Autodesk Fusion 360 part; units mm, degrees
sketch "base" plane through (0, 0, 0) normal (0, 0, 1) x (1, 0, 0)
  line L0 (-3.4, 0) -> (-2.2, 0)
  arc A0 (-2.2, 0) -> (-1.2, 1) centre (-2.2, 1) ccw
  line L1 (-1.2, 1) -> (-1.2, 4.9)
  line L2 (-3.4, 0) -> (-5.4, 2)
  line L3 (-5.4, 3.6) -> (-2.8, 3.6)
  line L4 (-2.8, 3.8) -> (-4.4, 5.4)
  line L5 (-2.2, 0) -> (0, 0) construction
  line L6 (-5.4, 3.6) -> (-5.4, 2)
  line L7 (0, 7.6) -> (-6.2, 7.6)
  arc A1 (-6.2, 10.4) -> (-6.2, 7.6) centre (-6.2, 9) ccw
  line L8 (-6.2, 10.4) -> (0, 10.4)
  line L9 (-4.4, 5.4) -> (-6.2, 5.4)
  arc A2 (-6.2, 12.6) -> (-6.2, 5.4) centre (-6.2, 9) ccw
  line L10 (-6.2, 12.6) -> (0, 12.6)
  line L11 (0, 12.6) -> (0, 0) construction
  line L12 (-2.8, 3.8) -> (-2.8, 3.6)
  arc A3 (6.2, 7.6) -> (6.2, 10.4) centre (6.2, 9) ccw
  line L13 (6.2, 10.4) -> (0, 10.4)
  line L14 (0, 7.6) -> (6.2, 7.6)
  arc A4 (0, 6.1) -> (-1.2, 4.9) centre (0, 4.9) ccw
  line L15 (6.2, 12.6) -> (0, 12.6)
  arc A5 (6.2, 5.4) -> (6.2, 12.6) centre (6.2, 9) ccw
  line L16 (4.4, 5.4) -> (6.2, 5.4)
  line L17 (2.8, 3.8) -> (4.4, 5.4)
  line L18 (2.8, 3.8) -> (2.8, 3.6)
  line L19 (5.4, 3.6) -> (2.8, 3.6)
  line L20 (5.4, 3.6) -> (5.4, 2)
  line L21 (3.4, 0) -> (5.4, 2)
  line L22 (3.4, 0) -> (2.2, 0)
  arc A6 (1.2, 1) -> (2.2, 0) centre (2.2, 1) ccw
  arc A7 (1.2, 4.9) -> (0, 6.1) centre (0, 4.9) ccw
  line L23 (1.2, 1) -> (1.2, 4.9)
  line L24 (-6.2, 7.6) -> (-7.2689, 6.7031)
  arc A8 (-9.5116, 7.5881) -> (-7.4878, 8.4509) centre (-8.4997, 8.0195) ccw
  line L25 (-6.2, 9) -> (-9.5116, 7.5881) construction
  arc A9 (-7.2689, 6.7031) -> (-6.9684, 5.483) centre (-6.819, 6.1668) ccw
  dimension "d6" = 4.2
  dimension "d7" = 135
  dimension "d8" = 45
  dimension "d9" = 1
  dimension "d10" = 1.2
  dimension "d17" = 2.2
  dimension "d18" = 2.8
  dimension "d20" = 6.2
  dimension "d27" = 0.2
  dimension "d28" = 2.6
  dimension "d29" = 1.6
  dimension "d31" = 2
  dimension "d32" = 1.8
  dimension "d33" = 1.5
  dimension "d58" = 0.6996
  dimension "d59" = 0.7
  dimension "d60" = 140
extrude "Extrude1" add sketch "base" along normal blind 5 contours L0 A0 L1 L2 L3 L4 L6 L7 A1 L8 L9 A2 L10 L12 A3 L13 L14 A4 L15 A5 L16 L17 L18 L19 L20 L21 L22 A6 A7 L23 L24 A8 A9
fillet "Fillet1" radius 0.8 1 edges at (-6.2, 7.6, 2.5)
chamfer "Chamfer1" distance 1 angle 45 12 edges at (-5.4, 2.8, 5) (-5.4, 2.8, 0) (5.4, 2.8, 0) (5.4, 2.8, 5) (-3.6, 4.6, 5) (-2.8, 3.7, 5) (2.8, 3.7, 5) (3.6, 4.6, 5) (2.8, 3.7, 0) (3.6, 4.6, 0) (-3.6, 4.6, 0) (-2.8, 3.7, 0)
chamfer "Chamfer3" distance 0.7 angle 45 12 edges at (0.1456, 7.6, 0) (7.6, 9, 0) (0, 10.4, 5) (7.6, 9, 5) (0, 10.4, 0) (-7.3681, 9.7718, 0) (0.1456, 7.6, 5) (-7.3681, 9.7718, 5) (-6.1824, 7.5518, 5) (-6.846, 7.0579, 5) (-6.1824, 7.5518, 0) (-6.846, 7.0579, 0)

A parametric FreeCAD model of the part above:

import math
import FreeCAD as App
import Part
import Sketcher

V = App.Vector
Q = App.Units.Quantity


def edges_at(feature, points):
    """Names of the edges that pass closest to the given points."""
    edges = feature.Shape.Edges
    near = lambda p: min(range(len(edges)), key=lambda i: edges[i].distToShape(Part.Vertex(*p))[0])
    return sorted({f"Edge{near(p) + 1}" for p in points})

doc = App.newDocument("Part")
body = doc.addObject("PartDesign::Body", "Body")

# Sketch on XY plane
sketch1 = body.newObject("Sketcher::SketchObject", "Sketch")
sketch1.AttachmentSupport = (doc.getObject("XY_Plane"), [""])
sketch1.MapMode = "FlatFace"
sketch1.addGeometry([
    Part.LineSegment(V(-5.4, 2, 0), V(-3.4, 0, 0)),  # 0
    Part.LineSegment(V(-3.4, 0, 0), V(-2.2, 0, 0)),  # 1
    Part.ArcOfCircle(Part.Circle(V(-2.2, 1, 0), V(0, 0, 1), 1), math.radians(-90), math.radians(0)),  # 2
    Part.LineSegment(V(-1.2, 1, 0), V(-1.2, 4.9, 0)),  # 3
    Part.ArcOfCircle(Part.Circle(V(0, 4.9, 0), V(0, 0, 1), 1.2), math.radians(0), math.radians(180)),  # 4
    Part.LineSegment(V(1.2, 4.9, 0), V(1.2, 1, 0)),  # 5
    Part.ArcOfCircle(Part.Circle(V(2.2, 1, 0), V(0, 0, 1), 1), math.radians(180), math.radians(270)),  # 6
    Part.LineSegment(V(2.2, 0, 0), V(3.4, 0, 0)),  # 7
    Part.LineSegment(V(3.4, 0, 0), V(5.4, 2, 0)),  # 8
    Part.LineSegment(V(5.4, 2, 0), V(5.4, 3.6, 0)),  # 9
    Part.LineSegment(V(5.4, 3.6, 0), V(2.8, 3.6, 0)),  # 10
    Part.LineSegment(V(2.8, 3.6, 0), V(2.8, 3.8, 0)),  # 11
    Part.LineSegment(V(2.8, 3.8, 0), V(4.4, 5.4, 0)),  # 12
    Part.LineSegment(V(4.4, 5.4, 0), V(6.2, 5.4, 0)),  # 13
    Part.ArcOfCircle(Part.Circle(V(6.2, 9, 0), V(0, 0, 1), 3.6), math.radians(-90), math.radians(90)),  # 14
    Part.LineSegment(V(6.2, 12.6, 0), V(-6.2, 12.6, 0)),  # 15
    Part.ArcOfCircle(Part.Circle(V(-6.2, 9, 0), V(0, 0, 1), 3.6), math.radians(90), math.radians(203)),  # 16
    Part.ArcOfCircle(Part.Circle(V(-8.5, 8.02, 0), V(0, 0, 1), 1.1), math.radians(-157), math.radians(23)),  # 17
    Part.ArcOfCircle(Part.Circle(V(-6.2, 9, 0), V(0, 0, 1), 1.4), math.radians(90), math.radians(203)),  # 18
    Part.LineSegment(V(-6.2, 10.4, 0), V(6.2, 10.4, 0)),  # 19
    Part.ArcOfCircle(Part.Circle(V(6.2, 9, 0), V(0, 0, 1), 1.4), math.radians(-90), math.radians(90)),  # 20
    Part.LineSegment(V(6.2, 7.6, 0), V(-6.2, 7.6, 0)),  # 21
    Part.LineSegment(V(-6.2, 7.6, 0), V(-7.27, 6.7, 0)),  # 22
    Part.ArcOfCircle(Part.Circle(V(-6.82, 6.17, 0), V(0, 0, 1), 0.7), math.radians(130), math.radians(258)),  # 23
    Part.ArcOfCircle(Part.Circle(V(-6.2, 9, 0), V(0, 0, 1), 3.6), math.radians(-102.32), math.radians(-90)),  # 24
    Part.LineSegment(V(-6.2, 5.4, 0), V(-4.4, 5.4, 0)),  # 25
    Part.LineSegment(V(-4.4, 5.4, 0), V(-2.8, 3.8, 0)),  # 26
    Part.LineSegment(V(-2.8, 3.8, 0), V(-2.8, 3.6, 0)),  # 27
    Part.LineSegment(V(-2.8, 3.6, 0), V(-5.4, 3.6, 0)),  # 28
    Part.LineSegment(V(-5.4, 3.6, 0), V(-5.4, 2, 0)),  # 29
], False)
sketch1.addConstraint([
    Sketcher.Constraint("Coincident", 0, 2, 1, 1),
    Sketcher.Constraint("Tangent", 1, 2, 2, 1),
    Sketcher.Constraint("Tangent", 2, 2, 3, 1),
    Sketcher.Constraint("Tangent", 3, 2, 4, 2),
    Sketcher.Constraint("Tangent", 4, 1, 5, 1),
    Sketcher.Constraint("Tangent", 5, 2, 6, 1),
    Sketcher.Constraint("Tangent", 6, 2, 7, 1),
    Sketcher.Constraint("Coincident", 7, 2, 8, 1),
    Sketcher.Constraint("Coincident", 8, 2, 9, 1),
    Sketcher.Constraint("Coincident", 9, 2, 10, 1),
    Sketcher.Constraint("Coincident", 10, 2, 11, 1),
    Sketcher.Constraint("Coincident", 11, 2, 12, 1),
    Sketcher.Constraint("Coincident", 12, 2, 13, 1),
    Sketcher.Constraint("Tangent", 13, 2, 14, 1),
    Sketcher.Constraint("Tangent", 14, 2, 15, 1),
    Sketcher.Constraint("Tangent", 15, 2, 16, 1),
    Sketcher.Constraint("Tangent", 16, 2, 17, 1),
    Sketcher.Constraint("Tangent", 17, 2, 18, 2),
    Sketcher.Constraint("Tangent", 18, 1, 19, 1),
    Sketcher.Constraint("Tangent", 19, 2, 20, 2),
    Sketcher.Constraint("Tangent", 20, 1, 21, 1),
    Sketcher.Constraint("Coincident", 21, 2, 22, 1),
    Sketcher.Constraint("Tangent", 22, 2, 23, 1),
    Sketcher.Constraint("Tangent", 23, 2, 24, 1),
    Sketcher.Constraint("Tangent", 24, 2, 25, 1),
    Sketcher.Constraint("Coincident", 25, 2, 26, 1),
    Sketcher.Constraint("Coincident", 26, 2, 27, 1),
    Sketcher.Constraint("Coincident", 27, 2, 28, 1),
    Sketcher.Constraint("Coincident", 28, 2, 29, 1),
    Sketcher.Constraint("Coincident", 29, 2, 0, 1),
    Sketcher.Constraint("Horizontal", 1),
    Sketcher.Constraint("Vertical", 3),
    Sketcher.Constraint("Vertical", 5),
    Sketcher.Constraint("Horizontal", 7),
    Sketcher.Constraint("Vertical", 9),
    Sketcher.Constraint("Horizontal", 10),
    Sketcher.Constraint("Vertical", 11),
    Sketcher.Constraint("Horizontal", 13),
    Sketcher.Constraint("Horizontal", 15),
    Sketcher.Constraint("Horizontal", 19),
    Sketcher.Constraint("Horizontal", 21),
    Sketcher.Constraint("Horizontal", 25),
    Sketcher.Constraint("Vertical", 27),
    Sketcher.Constraint("Horizontal", 28),
    Sketcher.Constraint("Vertical", 29),
    Sketcher.Constraint("Coincident", 18, 3, 16, 3),
    Sketcher.Constraint("Coincident", 20, 3, 14, 3),
    Sketcher.Constraint("Coincident", 24, 3, 16, 3),
    Sketcher.Constraint("Equal", 2, 6),
    Sketcher.Constraint("Equal", 14, 16),
    Sketcher.Constraint("Equal", 16, 24),
    Sketcher.Constraint("Symmetric", 1, 2, 6, 2, -1, 1),
    Sketcher.Constraint("Symmetric", 0, 2, 7, 2, -2),
    Sketcher.Constraint("Symmetric", 11, 2, 26, 2, -2),
    Sketcher.Constraint("Symmetric", 9, 2, 28, 2, -2),
    Sketcher.Constraint("Perpendicular", 0, 8),
    Sketcher.Constraint("Parallel", 8, 12),
    Sketcher.Constraint("Perpendicular", 12, 26),
    Sketcher.Constraint("Horizontal", 8, 2, 29, 2),
    Sketcher.Constraint("Vertical", 18, 1, 21, 2),
    Sketcher.Constraint("Equal", 13, 25),
    Sketcher.Constraint("Radius", 2, Q("1 mm")),
    Sketcher.Constraint("Radius", 4, Q("1.2 mm")),
    Sketcher.Constraint("Radius", 17, Q("1.1 mm")),
    Sketcher.Constraint("Radius", 18, Q("1.4 mm")),
    Sketcher.Constraint("Radius", 23, Q("0.7 mm")),
    Sketcher.Constraint("Angle", 22, Q("-140.0004 deg")),
    Sketcher.Constraint("DistanceX", 1, 1, 1, 2, Q("1.2 mm")),
    Sketcher.Constraint("DistanceX", 10, 2, 10, 1, Q("2.6 mm")),
    Sketcher.Constraint("DistanceX", 13, 1, 13, 2, Q("1.8 mm")),
    Sketcher.Constraint("DistanceY", 9, 1, 9, 2, Q("1.6 mm")),
    Sketcher.Constraint("DistanceY", 11, 1, 11, 2, Q("0.2 mm")),
    Sketcher.Constraint("DistanceY", -1, 1, 8, 2, Q("2 mm")),
    Sketcher.Constraint("DistanceX", 12, 2, 9, 2, Q("1 mm")),
    Sketcher.Constraint("DistanceY", 3, 1, 3, 2, Q("3.9 mm")),
    Sketcher.Constraint("DistanceY", -1, 1, 16, 2, Q("7.588 mm")),
])
pad1 = body.newObject("PartDesign::Pad", "Pad")
pad1.Profile = sketch1
pad1.Length = 5
doc.recompute()

fillet = body.newObject("PartDesign::Fillet", "Fillet")
fillet.Base = (pad1, edges_at(pad1, [(-6.2, 7.6, 2.5)]))
fillet.Radius = 0.8
doc.recompute()

chamfer = body.newObject("PartDesign::Chamfer", "Chamfer")
chamfer.Base = (fillet, edges_at(fillet, [
    (-5.4, 2.8, 5),
    (-5.4, 2.8, 0),
    (5.4, 2.8, 0),
    (5.4, 2.8, 5),
    (-3.6, 4.6, 5),
    (-2.8, 3.7, 5),
    (2.8, 3.7, 5),
    (3.6, 4.6, 5),
    (2.8, 3.7, 0),
    (3.6, 4.6, 0),
    (-3.6, 4.6, 0),
    (-2.8, 3.7, 0),
]))
chamfer.Size = 1
doc.recompute()

chamfer2 = body.newObject("PartDesign::Chamfer", "Chamfer001")
chamfer2.Base = (chamfer, edges_at(chamfer, [
    (0.146, 7.6, 0),
    (7.6, 9, 0),
    (0, 10.4, 5),
    (7.6, 9, 5),
    (0, 10.4, 0),
    (-7.368, 9.772, 0),
    (0.146, 7.6, 5),
    (-7.368, 9.772, 5),
    (-6.182, 7.552, 5),
    (-6.846, 7.058, 5),
    (-6.182, 7.552, 0),
    (-6.846, 7.058, 0),
]))
chamfer2.Size = 0.7

doc.recompute()
